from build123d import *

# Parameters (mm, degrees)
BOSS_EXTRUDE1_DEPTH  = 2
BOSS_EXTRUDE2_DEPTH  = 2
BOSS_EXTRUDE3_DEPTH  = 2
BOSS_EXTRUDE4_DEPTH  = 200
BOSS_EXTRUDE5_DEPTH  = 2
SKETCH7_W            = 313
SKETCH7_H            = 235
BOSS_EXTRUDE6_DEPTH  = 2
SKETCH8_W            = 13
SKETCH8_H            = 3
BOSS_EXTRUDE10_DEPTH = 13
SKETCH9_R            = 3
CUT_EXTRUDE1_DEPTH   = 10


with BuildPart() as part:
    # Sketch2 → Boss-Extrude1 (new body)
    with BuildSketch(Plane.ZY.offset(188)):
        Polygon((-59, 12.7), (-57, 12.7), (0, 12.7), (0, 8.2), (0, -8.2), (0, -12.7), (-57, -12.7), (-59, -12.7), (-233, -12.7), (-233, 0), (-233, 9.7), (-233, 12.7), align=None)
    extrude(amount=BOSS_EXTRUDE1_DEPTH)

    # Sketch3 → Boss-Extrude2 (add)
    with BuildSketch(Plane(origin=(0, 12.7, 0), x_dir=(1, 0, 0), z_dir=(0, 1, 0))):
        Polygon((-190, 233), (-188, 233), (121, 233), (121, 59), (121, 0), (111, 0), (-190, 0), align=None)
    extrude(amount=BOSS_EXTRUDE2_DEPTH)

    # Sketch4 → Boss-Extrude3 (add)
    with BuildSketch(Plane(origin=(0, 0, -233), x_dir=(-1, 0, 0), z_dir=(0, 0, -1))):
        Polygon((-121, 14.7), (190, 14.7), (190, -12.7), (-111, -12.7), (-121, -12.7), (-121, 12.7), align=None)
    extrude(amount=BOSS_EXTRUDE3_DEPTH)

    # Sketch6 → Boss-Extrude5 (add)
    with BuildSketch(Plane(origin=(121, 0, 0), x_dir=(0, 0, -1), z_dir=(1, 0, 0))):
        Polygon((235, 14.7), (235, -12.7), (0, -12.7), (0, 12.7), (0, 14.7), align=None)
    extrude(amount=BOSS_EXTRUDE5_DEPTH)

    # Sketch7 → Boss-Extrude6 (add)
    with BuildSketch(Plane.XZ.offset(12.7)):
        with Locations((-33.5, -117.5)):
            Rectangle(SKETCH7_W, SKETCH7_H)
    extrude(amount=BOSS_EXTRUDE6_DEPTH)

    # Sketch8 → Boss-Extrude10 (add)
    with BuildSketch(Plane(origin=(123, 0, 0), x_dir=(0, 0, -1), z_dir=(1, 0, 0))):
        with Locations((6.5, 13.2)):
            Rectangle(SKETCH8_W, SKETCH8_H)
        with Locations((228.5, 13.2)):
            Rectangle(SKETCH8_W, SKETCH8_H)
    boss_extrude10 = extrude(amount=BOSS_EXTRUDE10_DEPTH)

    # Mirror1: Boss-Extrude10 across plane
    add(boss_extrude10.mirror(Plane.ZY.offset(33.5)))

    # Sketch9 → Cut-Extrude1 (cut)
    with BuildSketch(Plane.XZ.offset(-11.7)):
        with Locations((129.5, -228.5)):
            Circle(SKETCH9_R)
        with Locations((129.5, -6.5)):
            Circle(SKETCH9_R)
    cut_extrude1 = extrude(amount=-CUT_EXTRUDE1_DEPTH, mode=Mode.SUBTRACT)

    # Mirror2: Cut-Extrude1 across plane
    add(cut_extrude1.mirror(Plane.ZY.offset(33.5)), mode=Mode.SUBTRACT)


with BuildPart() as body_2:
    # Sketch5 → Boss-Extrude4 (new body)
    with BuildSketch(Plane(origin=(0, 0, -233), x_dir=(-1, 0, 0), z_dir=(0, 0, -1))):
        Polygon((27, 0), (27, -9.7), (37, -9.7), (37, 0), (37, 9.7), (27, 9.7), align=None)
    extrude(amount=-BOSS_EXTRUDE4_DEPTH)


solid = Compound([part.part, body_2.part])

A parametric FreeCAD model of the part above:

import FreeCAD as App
import Part
import Sketcher
Q = App.Units.Quantity

doc = App.newDocument("Part")
body = doc.addObject("PartDesign::Body", "Body")

# Sketch on YZ plane
sketch1 = body.newObject("Sketcher::SketchObject", "Sketch")
sketch1.AttachmentSupport = (doc.getObject("YZ_Plane"), [""])
sketch1.MapMode = "FlatFace"
sketch1.AttachmentOffset = App.Placement(App.Vector(0, 0, -188), App.Rotation())
sketch1.addGeometry(Part.LineSegment(App.Vector(13, 0, 0), App.Vector(13, -233, 0)), False)
sketch1.addGeometry(Part.LineSegment(App.Vector(13, -233, 0), App.Vector(-13, -233, 0)), False)
sketch1.addGeometry(Part.LineSegment(App.Vector(-13, -233, 0), App.Vector(-13, 0, 0)), False)
sketch1.addGeometry(Part.LineSegment(App.Vector(-13, 0, 0), App.Vector(13, 0, 0)), False)
sketch1.addConstraint(Sketcher.Constraint("Coincident", 0, 2, 1, 1))
sketch1.addConstraint(Sketcher.Constraint("Coincident", 1, 2, 2, 1))
sketch1.addConstraint(Sketcher.Constraint("Coincident", 2, 2, 3, 1))
sketch1.addConstraint(Sketcher.Constraint("Coincident", 3, 2, 0, 1))
sketch1.addConstraint(Sketcher.Constraint("Vertical", 0))
sketch1.addConstraint(Sketcher.Constraint("Horizontal", 1))
sketch1.addConstraint(Sketcher.Constraint("Vertical", 2))
sketch1.addConstraint(Sketcher.Constraint("Horizontal", 3))
sketch1.addConstraint(Sketcher.Constraint("Symmetric", 2, 2, 3, 2, -1, 1))
sketch1.addConstraint(Sketcher.Constraint("DistanceY", 0, 2, 0, 1, Q("233 mm")))
sketch1.addConstraint(Sketcher.Constraint("DistanceX", 1, 2, 1, 1, Q("25.4 mm")))
pad1 = body.newObject("PartDesign::Pad", "Pad")
pad1.Profile = sketch1
pad1.Length = 2
pad1.Reversed = True

# Sketch on XZ plane
sketch2 = body.newObject("Sketcher::SketchObject", "Sketch001")
sketch2.AttachmentSupport = (doc.getObject("XZ_Plane"), [""])
sketch2.MapMode = "FlatFace"
sketch2.AttachmentOffset = App.Placement(App.Vector(0, 0, -12.7), App.Rotation())
sketch2.addGeometry(Part.LineSegment(App.Vector(121, -233, 0), App.Vector(-190, -233, 0)), False)
sketch2.addGeometry(Part.LineSegment(App.Vector(-190, -233, 0), App.Vector(-190, 0, 0)), False)
sketch2.addGeometry(Part.LineSegment(App.Vector(-190, 0, 0), App.Vector(121, 0, 0)), False)
sketch2.addGeometry(Part.LineSegment(App.Vector(121, 0, 0), App.Vector(121, -233, 0)), False)
sketch2.addConstraint(Sketcher.Constraint("Coincident", 0, 2, 1, 1))
sketch2.addConstraint(Sketcher.Constraint("Coincident", 1, 2, 2, 1))
sketch2.addConstraint(Sketcher.Constraint("Coincident", 2, 2, 3, 1))
sketch2.addConstraint(Sketcher.Constraint("Coincident", 3, 2, 0, 1))
sketch2.addConstraint(Sketcher.Constraint("Horizontal", 0))
sketch2.addConstraint(Sketcher.Constraint("Vertical", 1))
sketch2.addConstraint(Sketcher.Constraint("Horizontal", 2))
sketch2.addConstraint(Sketcher.Constraint("Vertical", 3))
sketch2.addConstraint(Sketcher.Constraint("PointOnObject", 1, 2, -1))
sketch2.addConstraint(Sketcher.Constraint("DistanceX", 0, 2, 0, 1, Q("311 mm")))
sketch2.addConstraint(Sketcher.Constraint("DistanceY", 1, 1, 1, 2, Q("233 mm")))
sketch2.addConstraint(Sketcher.Constraint("DistanceX", 0, 2, -1, 1, Q("190 mm")))
pad2 = body.newObject("PartDesign::Pad", "Pad001")
pad2.Profile = sketch2
pad2.Length = 2
pad2.Reversed = True

# Sketch on XY plane
sketch3 = body.newObject("Sketcher::SketchObject", "Sketch002")
sketch3.AttachmentSupport = (doc.getObject("XY_Plane"), [""])
sketch3.MapMode = "FlatFace"
sketch3.AttachmentOffset = App.Placement(App.Vector(0, 0, -233), App.Rotation())
sketch3.addGeometry(Part.LineSegment(App.Vector(-190, 15, 0), App.Vector(121, 15, 0)), False)
sketch3.addGeometry(Part.LineSegment(App.Vector(121, 15, 0), App.Vector(121, -13, 0)), False)
sketch3.addGeometry(Part.LineSegment(App.Vector(121, -13, 0), App.Vector(-190, -13, 0)), False)
sketch3.addGeometry(Part.LineSegment(App.Vector(-190, -13, 0), App.Vector(-190, 15, 0)), False)
sketch3.addConstraint(Sketcher.Constraint("Coincident", 0, 2, 1, 1))
sketch3.addConstraint(Sketcher.Constraint("Coincident", 1, 2, 2, 1))
sketch3.addConstraint(Sketcher.Constraint("Coincident", 2, 2, 3, 1))
sketch3.addConstraint(Sketcher.Constraint("Coincident", 3, 2, 0, 1))
sketch3.addConstraint(Sketcher.Constraint("Horizontal", 0))
sketch3.addConstraint(Sketcher.Constraint("Vertical", 1))
sketch3.addConstraint(Sketcher.Constraint("Horizontal", 2))
sketch3.addConstraint(Sketcher.Constraint("Vertical", 3))
sketch3.addConstraint(Sketcher.Constraint("DistanceX", 0, 1, 0, 2, Q("311 mm")))
sketch3.addConstraint(Sketcher.Constraint("DistanceY", 1, 2, 1, 1, Q("27.4 mm")))
sketch3.addConstraint(Sketcher.Constraint("DistanceX", -1, 1, 0, 2, Q("121 mm")))
sketch3.addConstraint(Sketcher.Constraint("DistanceY", -1, 1, 0, 2, Q("14.7 mm")))
pad3 = body.newObject("PartDesign::Pad", "Pad002")
pad3.Profile = sketch3
pad3.Length = 2
pad3.Reversed = True

# Sketch on YZ plane
sketch4 = body.newObject("Sketcher::SketchObject", "Sketch003")
sketch4.AttachmentSupport = (doc.getObject("YZ_Plane"), [""])
sketch4.MapMode = "FlatFace"
sketch4.AttachmentOffset = App.Placement(App.Vector(0, 0, 121), App.Rotation())
sketch4.addGeometry(Part.LineSegment(App.Vector(-13, -235, 0), App.Vector(15, -235, 0)), False)
sketch4.addGeometry(Part.LineSegment(App.Vector(15, -235, 0), App.Vector(15, 0, 0)), False)
sketch4.addGeometry(Part.LineSegment(App.Vector(15, 0, 0), App.Vector(-13, 0, 0)), False)
sketch4.addGeometry(Part.LineSegment(App.Vector(-13, 0, 0), App.Vector(-13, -235, 0)), False)
sketch4.addConstraint(Sketcher.Constraint("Coincident", 0, 2, 1, 1))
sketch4.addConstraint(Sketcher.Constraint("Coincident", 1, 2, 2, 1))
sketch4.addConstraint(Sketcher.Constraint("Coincident", 2, 2, 3, 1))
sketch4.addConstraint(Sketcher.Constraint("Coincident", 3, 2, 0, 1))
sketch4.addConstraint(Sketcher.Constraint("Horizontal", 0))
sketch4.addConstraint(Sketcher.Constraint("Vertical", 1))
sketch4.addConstraint(Sketcher.Constraint("Horizontal", 2))
sketch4.addConstraint(Sketcher.Constraint("Vertical", 3))
sketch4.addConstraint(Sketcher.Constraint("PointOnObject", 1, 2, -1))
sketch4.addConstraint(Sketcher.Constraint("DistanceY", 1, 1, 1, 2, Q("235 mm")))
sketch4.addConstraint(Sketcher.Constraint("DistanceX", 0, 1, 0, 2, Q("27.4 mm")))
sketch4.addConstraint(Sketcher.Constraint("DistanceX", -1, 1, 0, 2, Q("14.7 mm")))
pad4 = body.newObject("PartDesign::Pad", "Pad003")
pad4.Profile = sketch4
pad4.Length = 2

# Sketch on XZ plane
sketch5 = body.newObject("Sketcher::SketchObject", "Sketch004")
sketch5.AttachmentSupport = (doc.getObject("XZ_Plane"), [""])
sketch5.MapMode = "FlatFace"
sketch5.AttachmentOffset = App.Placement(App.Vector(0, 0, 12.7), App.Rotation())
sketch5.addGeometry(Part.LineSegment(App.Vector(-190, 0, 0), App.Vector(-190, -235, 0)), False)
sketch5.addGeometry(Part.LineSegment(App.Vector(-190, -235, 0), App.Vector(123, -235, 0)), False)
sketch5.addGeometry(Part.LineSegment(App.Vector(123, -235, 0), App.Vector(123, 0, 0)), False)
sketch5.addGeometry(Part.LineSegment(App.Vector(123, 0, 0), App.Vector(-190, 0, 0)), False)
sketch5.addConstraint(Sketcher.Constraint("Coincident", 0, 2, 1, 1))
sketch5.addConstraint(Sketcher.Constraint("Coincident", 1, 2, 2, 1))
sketch5.addConstraint(Sketcher.Constraint("Coincident", 2, 2, 3, 1))
sketch5.addConstraint(Sketcher.Constraint("Coincident", 3, 2, 0, 1))
sketch5.addConstraint(Sketcher.Constraint("Vertical", 0))
sketch5.addConstraint(Sketcher.Constraint("Horizontal", 1))
sketch5.addConstraint(Sketcher.Constraint("Vertical", 2))
sketch5.addConstraint(Sketcher.Constraint("Horizontal", 3))
sketch5.addConstraint(Sketcher.Constraint("PointOnObject", 2, 2, -1))
sketch5.addConstraint(Sketcher.Constraint("DistanceX", 1, 1, 1, 2, Q("313 mm")))
sketch5.addConstraint(Sketcher.Constraint("DistanceY", 0, 2, 0, 1, Q("235 mm")))
sketch5.addConstraint(Sketcher.Constraint("DistanceX", 0, 2, -1, 1, Q("190 mm")))
pad5 = body.newObject("PartDesign::Pad", "Pad004")
pad5.Profile = sketch5
pad5.Length = 2

# Sketch on YZ plane
sketch6 = body.newObject("Sketcher::SketchObject", "Sketch005")
sketch6.AttachmentSupport = (doc.getObject("YZ_Plane"), [""])
sketch6.MapMode = "FlatFace"
sketch6.AttachmentOffset = App.Placement(App.Vector(0, 0, 123), App.Rotation())
sketch6.addGeometry(Part.LineSegment(App.Vector(14.7, 0, 0), App.Vector(11.7, 0, 0)), False)
sketch6.addGeometry(Part.LineSegment(App.Vector(11.7, 0, 0), App.Vector(11.7, -13, 0)), False)
sketch6.addGeometry(Part.LineSegment(App.Vector(11.7, -13, 0), App.Vector(14.7, -13, 0)), False)
sketch6.addGeometry(Part.LineSegment(App.Vector(14.7, -13, 0), App.Vector(14.7, 0, 0)), False)
sketch6.addGeometry(Part.LineSegment(App.Vector(14.7, -222, 0), App.Vector(11.7, -222, 0)), False)
sketch6.addGeometry(Part.LineSegment(App.Vector(11.7, -222, 0), App.Vector(11.7, -235, 0)), False)
sketch6.addGeometry(Part.LineSegment(App.Vector(11.7, -235, 0), App.Vector(14.7, -235, 0)), False)
sketch6.addGeometry(Part.LineSegment(App.Vector(14.7, -235, 0), App.Vector(14.7, -222, 0)), False)
sketch6.addConstraint(Sketcher.Constraint("Coincident", 0, 2, 1, 1))
sketch6.addConstraint(Sketcher.Constraint("Coincident", 1, 2, 2, 1))
sketch6.addConstraint(Sketcher.Constraint("Coincident", 2, 2, 3, 1))
sketch6.addConstraint(Sketcher.Constraint("Coincident", 3, 2, 0, 1))
sketch6.addConstraint(Sketcher.Constraint("Coincident", 4, 2, 5, 1))
sketch6.addConstraint(Sketcher.Constraint("Coincident", 5, 2, 6, 1))
sketch6.addConstraint(Sketcher.Constraint("Coincident", 6, 2, 7, 1))
sketch6.addConstraint(Sketcher.Constraint("Coincident", 7, 2, 4, 1))
sketch6.addConstraint(Sketcher.Constraint("Horizontal", 0))
sketch6.addConstraint(Sketcher.Constraint("Vertical", 1))
sketch6.addConstraint(Sketcher.Constraint("Horizontal", 2))
sketch6.addConstraint(Sketcher.Constraint("Vertical", 3))
sketch6.addConstraint(Sketcher.Constraint("Horizontal", 4))
sketch6.addConstraint(Sketcher.Constraint("Vertical", 5))
sketch6.addConstraint(Sketcher.Constraint("Horizontal", 6))
sketch6.addConstraint(Sketcher.Constraint("Vertical", 7))
sketch6.addConstraint(Sketcher.Constraint("PointOnObject", 0, 2, -1))
sketch6.addConstraint(Sketcher.Constraint("Vertical", 1, 2, 4, 2))
sketch6.addConstraint(Sketcher.Constraint("Vertical", 3, 2, 6, 2))
sketch6.addConstraint(Sketcher.Constraint("Equal", 3, 5))
sketch6.addConstraint(Sketcher.Constraint("DistanceX", 0, 2, 0, 1, Q("3 mm")))
sketch6.addConstraint(Sketcher.Constraint("DistanceY", 1, 2, 1, 1, Q("13 mm")))
sketch6.addConstraint(Sketcher.Constraint("DistanceY", 4, 2, -1, 1, Q("222 mm")))
sketch6.addConstraint(Sketcher.Constraint("DistanceX", -1, 1, 0, 2, Q("11.7 mm")))
pad6 = body.newObject("PartDesign::Pad", "Pad005")
pad6.Profile = sketch6
pad6.Length = 13
doc.recompute()

datumplane = body.newObject("PartDesign::Plane", "DatumPlane")
datumplane.AttachmentSupport = (doc.getObject("YZ_Plane"), [""])
datumplane.MapMode = "FlatFace"
datumplane.AttachmentOffset = App.Placement(App.Vector(0, 0, -33.5), App.Rotation())
mirrored = body.newObject("PartDesign::Mirrored", "Mirrored")
mirrored.Originals = [pad6]
mirrored.MirrorPlane = (datumplane, [""])
body.Tip = mirrored

# Sketch on XZ plane
sketch7 = body.newObject("Sketcher::SketchObject", "Sketch006")
sketch7.AttachmentSupport = (doc.getObject("XZ_Plane"), [""])
sketch7.MapMode = "FlatFace"
sketch7.AttachmentOffset = App.Placement(App.Vector(0, 0, -11.7), App.Rotation())
sketch7.addGeometry(Part.Circle(App.Vector(129.5, -228.5, 0), App.Vector(0, 0, 1), 3), False)
sketch7.addGeometry(Part.Circle(App.Vector(129.5, -6.5, 0), App.Vector(0, 0, 1), 3), False)
sketch7.addConstraint(Sketcher.Constraint("Equal", 0, 1))
sketch7.addConstraint(Sketcher.Constraint("Vertical", 0, 3, 1, 3))
sketch7.addConstraint(Sketcher.Constraint("Diameter", 0, Q("6 mm")))
sketch7.addConstraint(Sketcher.Constraint("DistanceY", 0, 3, 1, 3, Q("222 mm")))
sketch7.addConstraint(Sketcher.Constraint("DistanceX", -1, 1, 0, 3, Q("129.5 mm")))
sketch7.addConstraint(Sketcher.Constraint("DistanceY", 0, 3, -1, 1, Q("228.5 mm")))
pocket1 = body.newObject("PartDesign::Pocket", "Pocket")
pocket1.Profile = sketch7
pocket1.Length = 10
doc.recompute()

datumplane2 = body.newObject("PartDesign::Plane", "DatumPlane001")
datumplane2.AttachmentSupport = (doc.getObject("YZ_Plane"), [""])
datumplane2.MapMode = "FlatFace"
datumplane2.AttachmentOffset = App.Placement(App.Vector(0, 0, -33.5), App.Rotation())
mirrored2 = body.newObject("PartDesign::Mirrored", "Mirrored001")
mirrored2.Originals = [pocket1]
mirrored2.MirrorPlane = (datumplane2, [""])
body.Tip = mirrored2
body2 = doc.addObject("PartDesign::Body", "Body001")

# Sketch on XY plane
sketch8 = body2.newObject("Sketcher::SketchObject", "Sketch007")
sketch8.AttachmentSupport = (doc.getObject("XY_Plane001"), [""])
sketch8.MapMode = "FlatFace"
sketch8.AttachmentOffset = App.Placement(App.Vector(0, 0, -233), App.Rotation())
sketch8.addGeometry(Part.LineSegment(App.Vector(-27, -10, 0), App.Vector(-37, -10, 0)), False)
sketch8.addGeometry(Part.LineSegment(App.Vector(-37, -10, 0), App.Vector(-37, 10, 0)), False)
sketch8.addGeometry(Part.LineSegment(App.Vector(-37, 10, 0), App.Vector(-27, 10, 0)), False)
sketch8.addGeometry(Part.LineSegment(App.Vector(-27, 10, 0), App.Vector(-27, -10, 0)), False)
sketch8.addConstraint(Sketcher.Constraint("Coincident", 0, 2, 1, 1))
sketch8.addConstraint(Sketcher.Constraint("Coincident", 1, 2, 2, 1))
sketch8.addConstraint(Sketcher.Constraint("Coincident", 2, 2, 3, 1))
sketch8.addConstraint(Sketcher.Constraint("Coincident", 3, 2, 0, 1))
sketch8.addConstraint(Sketcher.Constraint("Horizontal", 0))
sketch8.addConstraint(Sketcher.Constraint("Vertical", 1))
sketch8.addConstraint(Sketcher.Constraint("Horizontal", 2))
sketch8.addConstraint(Sketcher.Constraint("Vertical", 3))
sketch8.addConstraint(Sketcher.Constraint("DistanceX", 0, 2, 0, 1, Q("10 mm")))
sketch8.addConstraint(Sketcher.Constraint("DistanceY", 1, 1, 1, 2, Q("19.4 mm")))
sketch8.addConstraint(Sketcher.Constraint("DistanceX", 0, 2, -1, 1, Q("37 mm")))
sketch8.addConstraint(Sketcher.Constraint("DistanceY", 0, 2, -1, 1, Q("9.7 mm")))
pad7 = body2.newObject("PartDesign::Pad", "Pad006")
pad7.Profile = sketch8
pad7.Length = 200

doc.recompute()
